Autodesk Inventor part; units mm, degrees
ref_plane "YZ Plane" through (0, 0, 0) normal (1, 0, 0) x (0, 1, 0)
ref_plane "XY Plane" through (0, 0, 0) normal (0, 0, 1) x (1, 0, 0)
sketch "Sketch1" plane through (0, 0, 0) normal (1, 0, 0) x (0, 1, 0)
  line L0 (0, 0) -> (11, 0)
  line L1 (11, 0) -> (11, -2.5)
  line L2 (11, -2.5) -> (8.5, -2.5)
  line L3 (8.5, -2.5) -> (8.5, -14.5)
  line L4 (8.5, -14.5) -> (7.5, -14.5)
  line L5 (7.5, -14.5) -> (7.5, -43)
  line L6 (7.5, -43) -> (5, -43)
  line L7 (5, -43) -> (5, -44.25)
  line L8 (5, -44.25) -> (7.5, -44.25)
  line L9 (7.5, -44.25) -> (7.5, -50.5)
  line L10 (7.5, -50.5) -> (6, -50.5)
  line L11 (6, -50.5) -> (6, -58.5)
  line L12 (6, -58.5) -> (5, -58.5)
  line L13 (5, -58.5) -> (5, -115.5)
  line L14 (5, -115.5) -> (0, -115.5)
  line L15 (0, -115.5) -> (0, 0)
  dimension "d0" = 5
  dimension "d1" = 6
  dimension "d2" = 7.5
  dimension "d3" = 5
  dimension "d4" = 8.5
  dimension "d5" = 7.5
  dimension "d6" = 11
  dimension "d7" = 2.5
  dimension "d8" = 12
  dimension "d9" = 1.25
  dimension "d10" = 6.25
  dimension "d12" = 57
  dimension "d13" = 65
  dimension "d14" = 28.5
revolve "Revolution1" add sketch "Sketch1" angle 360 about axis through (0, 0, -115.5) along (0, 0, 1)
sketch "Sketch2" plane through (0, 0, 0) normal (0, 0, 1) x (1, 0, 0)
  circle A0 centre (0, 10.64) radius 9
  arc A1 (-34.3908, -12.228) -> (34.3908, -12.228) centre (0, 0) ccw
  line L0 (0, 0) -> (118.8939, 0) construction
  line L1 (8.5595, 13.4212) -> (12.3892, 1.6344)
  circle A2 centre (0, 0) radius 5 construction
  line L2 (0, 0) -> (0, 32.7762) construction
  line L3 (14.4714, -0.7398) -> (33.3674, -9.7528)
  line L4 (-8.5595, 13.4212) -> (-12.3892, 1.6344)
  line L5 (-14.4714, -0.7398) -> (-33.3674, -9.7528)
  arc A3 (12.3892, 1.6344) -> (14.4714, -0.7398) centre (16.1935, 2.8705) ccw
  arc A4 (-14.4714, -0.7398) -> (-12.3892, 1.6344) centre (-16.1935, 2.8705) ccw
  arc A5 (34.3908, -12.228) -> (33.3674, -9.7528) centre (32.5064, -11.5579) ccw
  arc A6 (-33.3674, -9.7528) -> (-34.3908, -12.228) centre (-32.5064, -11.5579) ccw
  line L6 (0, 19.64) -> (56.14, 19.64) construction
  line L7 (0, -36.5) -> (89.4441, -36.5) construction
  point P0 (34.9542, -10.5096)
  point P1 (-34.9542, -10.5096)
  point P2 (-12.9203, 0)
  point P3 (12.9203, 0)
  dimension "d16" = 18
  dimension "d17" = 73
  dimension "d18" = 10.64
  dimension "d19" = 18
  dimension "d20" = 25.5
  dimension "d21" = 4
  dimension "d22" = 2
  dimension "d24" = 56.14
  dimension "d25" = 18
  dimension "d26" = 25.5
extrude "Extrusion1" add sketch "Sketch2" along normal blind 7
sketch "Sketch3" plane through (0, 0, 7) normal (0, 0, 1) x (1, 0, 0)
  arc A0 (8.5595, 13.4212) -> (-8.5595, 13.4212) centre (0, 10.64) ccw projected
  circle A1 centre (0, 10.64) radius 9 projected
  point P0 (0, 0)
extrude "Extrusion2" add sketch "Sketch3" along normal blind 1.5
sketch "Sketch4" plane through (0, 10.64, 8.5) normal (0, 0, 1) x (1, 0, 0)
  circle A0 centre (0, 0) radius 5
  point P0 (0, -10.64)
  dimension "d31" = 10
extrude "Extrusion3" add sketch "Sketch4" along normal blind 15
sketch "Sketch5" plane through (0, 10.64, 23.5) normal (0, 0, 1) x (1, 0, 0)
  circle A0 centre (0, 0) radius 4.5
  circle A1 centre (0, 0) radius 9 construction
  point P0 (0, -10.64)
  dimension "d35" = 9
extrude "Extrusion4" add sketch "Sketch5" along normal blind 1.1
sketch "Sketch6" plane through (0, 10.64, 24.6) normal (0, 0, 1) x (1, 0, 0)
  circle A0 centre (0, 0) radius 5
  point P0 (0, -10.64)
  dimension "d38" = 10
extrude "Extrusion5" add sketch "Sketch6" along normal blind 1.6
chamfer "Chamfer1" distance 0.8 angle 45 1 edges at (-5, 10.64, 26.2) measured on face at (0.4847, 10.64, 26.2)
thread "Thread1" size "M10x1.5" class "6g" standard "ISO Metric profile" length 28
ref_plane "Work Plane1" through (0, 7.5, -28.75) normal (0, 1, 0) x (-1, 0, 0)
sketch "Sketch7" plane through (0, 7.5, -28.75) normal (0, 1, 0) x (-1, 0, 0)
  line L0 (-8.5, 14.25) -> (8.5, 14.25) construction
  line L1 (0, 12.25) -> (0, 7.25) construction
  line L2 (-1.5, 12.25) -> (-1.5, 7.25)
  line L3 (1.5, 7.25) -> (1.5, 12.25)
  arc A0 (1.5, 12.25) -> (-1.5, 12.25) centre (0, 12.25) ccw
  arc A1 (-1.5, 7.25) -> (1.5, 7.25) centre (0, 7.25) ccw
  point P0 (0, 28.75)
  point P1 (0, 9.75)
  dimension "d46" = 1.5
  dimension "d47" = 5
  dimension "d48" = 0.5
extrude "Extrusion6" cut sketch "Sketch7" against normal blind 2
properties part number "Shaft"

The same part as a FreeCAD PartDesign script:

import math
import FreeCAD as App
import Part
import Sketcher

V = App.Vector


def edges_at(feature, points):
    """Names of the edges that pass closest to the given points."""
    edges = feature.Shape.Edges
    near = lambda p: min(range(len(edges)), key=lambda i: edges[i].distToShape(Part.Vertex(*p))[0])
    return sorted({f"Edge{near(p) + 1}" for p in points})

doc = App.newDocument("Part")
body = doc.addObject("PartDesign::Body", "Body")

# Sketch on YZ plane
sketch1 = doc.addObject("Sketcher::SketchObject", "Sketch")
body.addObject(sketch1)
sketch1.AttachmentSupport = (doc.YZ_Plane, [""])
sketch1.MapMode = "FlatFace"
sketch1.addGeometry(Part.LineSegment(V(11, 0, 0), V(0, 0, 0)), False)
sketch1.addGeometry(Part.LineSegment(V(0, 0, 0), V(0, -115.5, 0)), False)
sketch1.addGeometry(Part.LineSegment(V(0, -115.5, 0), V(5, -115.5, 0)), False)
sketch1.addGeometry(Part.LineSegment(V(5, -115.5, 0), V(5, -58.5, 0)), False)
sketch1.addGeometry(Part.LineSegment(V(5, -58.5, 0), V(6, -58.5, 0)), False)
sketch1.addGeometry(Part.LineSegment(V(6, -58.5, 0), V(6, -50.5, 0)), False)
sketch1.addGeometry(Part.LineSegment(V(6, -50.5, 0), V(7.5, -50.5, 0)), False)
sketch1.addGeometry(Part.LineSegment(V(7.5, -50.5, 0), V(7.5, -44.25, 0)), False)
sketch1.addGeometry(Part.LineSegment(V(7.5, -44.25, 0), V(5, -44.25, 0)), False)
sketch1.addGeometry(Part.LineSegment(V(5, -44.25, 0), V(5, -43, 0)), False)
sketch1.addGeometry(Part.LineSegment(V(5, -43, 0), V(7.5, -43, 0)), False)
sketch1.addGeometry(Part.LineSegment(V(7.5, -43, 0), V(7.5, -14.5, 0)), False)
sketch1.addGeometry(Part.LineSegment(V(7.5, -14.5, 0), V(8.5, -14.5, 0)), False)
sketch1.addGeometry(Part.LineSegment(V(8.5, -14.5, 0), V(8.5, -2.5, 0)), False)
sketch1.addGeometry(Part.LineSegment(V(8.5, -2.5, 0), V(11, -2.5, 0)), False)
sketch1.addGeometry(Part.LineSegment(V(11, -2.5, 0), V(11, 0, 0)), False)
sketch1.addConstraint(Sketcher.Constraint("Coincident", 0, 2, 1, 1))
sketch1.addConstraint(Sketcher.Constraint("Coincident", 1, 2, 2, 1))
sketch1.addConstraint(Sketcher.Constraint("Coincident", 2, 2, 3, 1))
sketch1.addConstraint(Sketcher.Constraint("Coincident", 3, 2, 4, 1))
sketch1.addConstraint(Sketcher.Constraint("Coincident", 4, 2, 5, 1))
sketch1.addConstraint(Sketcher.Constraint("Coincident", 5, 2, 6, 1))
sketch1.addConstraint(Sketcher.Constraint("Coincident", 6, 2, 7, 1))
sketch1.addConstraint(Sketcher.Constraint("Coincident", 7, 2, 8, 1))
sketch1.addConstraint(Sketcher.Constraint("Coincident", 8, 2, 9, 1))
sketch1.addConstraint(Sketcher.Constraint("Coincident", 9, 2, 10, 1))
sketch1.addConstraint(Sketcher.Constraint("Coincident", 10, 2, 11, 1))
sketch1.addConstraint(Sketcher.Constraint("Coincident", 11, 2, 12, 1))
sketch1.addConstraint(Sketcher.Constraint("Coincident", 12, 2, 13, 1))
sketch1.addConstraint(Sketcher.Constraint("Coincident", 13, 2, 14, 1))
sketch1.addConstraint(Sketcher.Constraint("Coincident", 14, 2, 15, 1))
sketch1.addConstraint(Sketcher.Constraint("Coincident", 15, 2, 0, 1))
sketch1.addConstraint(Sketcher.Constraint("Horizontal", 0))
sketch1.addConstraint(Sketcher.Constraint("Vertical", 1))
sketch1.addConstraint(Sketcher.Constraint("Horizontal", 2))
sketch1.addConstraint(Sketcher.Constraint("Vertical", 3))
sketch1.addConstraint(Sketcher.Constraint("Horizontal", 4))
sketch1.addConstraint(Sketcher.Constraint("Vertical", 5))
sketch1.addConstraint(Sketcher.Constraint("Horizontal", 6))
sketch1.addConstraint(Sketcher.Constraint("Vertical", 7))
sketch1.addConstraint(Sketcher.Constraint("Horizontal", 8))
sketch1.addConstraint(Sketcher.Constraint("Vertical", 9))
sketch1.addConstraint(Sketcher.Constraint("Horizontal", 10))
sketch1.addConstraint(Sketcher.Constraint("Vertical", 11))
sketch1.addConstraint(Sketcher.Constraint("Horizontal", 12))
sketch1.addConstraint(Sketcher.Constraint("Vertical", 13))
sketch1.addConstraint(Sketcher.Constraint("Horizontal", 14))
sketch1.addConstraint(Sketcher.Constraint("Vertical", 15))
sketch1.addConstraint(Sketcher.Constraint("Coincident", 0, 2, -1, 1))
sketch1.addConstraint(Sketcher.Constraint("Vertical", 3, 2, 8, 2))
sketch1.addConstraint(Sketcher.Constraint("Vertical", 7, 2, 10, 2))
sketch1.addConstraint(Sketcher.Constraint("Equal", 4, 12))
sketch1.addConstraint(Sketcher.Constraint("Equal", 10, 14))
sketch1.addConstraint(Sketcher.Constraint("Equal", 14, 15))
sketch1.addConstraint(Sketcher.Constraint("DistanceX", 0, 2, 0, 1, 11.0))
sketch1.addConstraint(Sketcher.Constraint("DistanceX", 2, 1, 2, 2, 5.0))
sketch1.addConstraint(Sketcher.Constraint("DistanceY", 3, 1, 3, 2, 57.0))
sketch1.addConstraint(Sketcher.Constraint("DistanceY", 13, 1, 13, 2, 12.0))
sketch1.addConstraint(Sketcher.Constraint("DistanceX", 8, 2, 8, 1, 2.5))
sketch1.addConstraint(Sketcher.Constraint("DistanceY", 11, 1, 11, 2, 28.5))
sketch1.addConstraint(Sketcher.Constraint("DistanceY", 2, 2, 5, 2, 65.0))
sketch1.addConstraint(Sketcher.Constraint("DistanceY", 7, 1, 7, 2, 6.25))
sketch1.addConstraint(Sketcher.Constraint("DistanceY", 9, 1, 9, 2, 1.25))
revolution = doc.addObject("PartDesign::Revolution", "Revolution")
body.addObject(revolution)
revolution.Profile = sketch1
revolution.ReferenceAxis = (sketch1, ["V_Axis"])
revolution.Angle = 360

# Sketch on XY plane
sketch2 = doc.addObject("Sketcher::SketchObject", "Sketch001")
body.addObject(sketch2)
sketch2.AttachmentSupport = (doc.XY_Plane, [""])
sketch2.MapMode = "FlatFace"
sketch2.addGeometry(Part.ArcOfCircle(Part.Circle(V(0, 10.64, 0), V(0, 0, 1), 9), math.radians(18.000302), math.radians(161.999698)), False)
sketch2.addGeometry(Part.LineSegment(V(-8.5595, 13.4212, 0), V(-12.3892, 1.6344, 0)), False)
sketch2.addGeometry(Part.ArcOfCircle(Part.Circle(V(-16.1935, 2.8705, 0), V(0, 0, 1), 3.999987), math.radians(-64.499027), math.radians(-18.000109)), False)
sketch2.addGeometry(Part.LineSegment(V(-14.4714, -0.7398, 0), V(-33.3674, -9.7528, 0)), False)
sketch2.addGeometry(Part.ArcOfCircle(Part.Circle(V(-32.5064, -11.5579, 0), V(0, 0, 1), 1.999927), math.radians(115.500296), math.radians(199.575585)), False)
sketch2.addGeometry(Part.ArcOfCircle(Part.Circle(V(0, 0, 0), V(0, 0, 1), 36.500015), math.radians(-160.426638), math.radians(-19.573362)), False)
sketch2.addGeometry(Part.ArcOfCircle(Part.Circle(V(32.5064, -11.5579, 0), V(0, 0, 1), 1.999999), math.radians(-19.575585), math.radians(64.499704)), False)
sketch2.addGeometry(Part.LineSegment(V(33.3674, -9.7528, 0), V(14.4714, -0.7398, 0)), False)
sketch2.addGeometry(Part.ArcOfCircle(Part.Circle(V(16.1935, 2.8705, 0), V(0, 0, 1), 4.00008), math.radians(-161.999891), math.radians(-115.500973)), False)
sketch2.addGeometry(Part.LineSegment(V(12.3892, 1.6344, 0), V(8.5595, 13.4212, 0)), False)
sketch2.addConstraint(Sketcher.Constraint("Coincident", 0, 2, 1, 1))
sketch2.addConstraint(Sketcher.Constraint("Coincident", 1, 2, 2, 2))
sketch2.addConstraint(Sketcher.Constraint("Coincident", 2, 1, 3, 1))
sketch2.addConstraint(Sketcher.Constraint("Coincident", 3, 2, 4, 1))
sketch2.addConstraint(Sketcher.Constraint("Coincident", 4, 2, 5, 1))
sketch2.addConstraint(Sketcher.Constraint("Coincident", 5, 2, 6, 1))
sketch2.addConstraint(Sketcher.Constraint("Coincident", 6, 2, 7, 1))
sketch2.addConstraint(Sketcher.Constraint("Coincident", 7, 2, 8, 2))
sketch2.addConstraint(Sketcher.Constraint("Coincident", 8, 1, 9, 1))
sketch2.addConstraint(Sketcher.Constraint("Coincident", 9, 2, 0, 1))
sketch2.addConstraint(Sketcher.Constraint("Coincident", 5, 3, -1, 1))
sketch2.addConstraint(Sketcher.Constraint("PointOnObject", 0, 3, -2))
sketch2.addConstraint(Sketcher.Constraint("Radius", 0, 9.0))
sketch2.addConstraint(Sketcher.Constraint("Radius", 2, 4.0))
sketch2.addConstraint(Sketcher.Constraint("Radius", 4, 2.0))
sketch2.addConstraint(Sketcher.Constraint("Radius", 6, 2.0))
sketch2.addConstraint(Sketcher.Constraint("Radius", 8, 4.0))
sketch2.addConstraint(Sketcher.Constraint("Radius", 5, 36.5))
sketch2.addConstraint(Sketcher.Constraint("DistanceY", -1, 1, 0, 3, 10.64))
sketch2.addConstraint(Sketcher.Constraint("DistanceX", 2, 3, 6, 3, 48.7))
sketch2.addConstraint(Sketcher.Constraint("DistanceX", 4, 3, 8, 3, 48.7))
sketch2.addConstraint(Sketcher.Constraint("DistanceY", 4, 2, 4, 3, 0.67))
sketch2.addConstraint(Sketcher.Constraint("DistanceY", 5, 2, 6, 3, 0.67))
sketch2.addConstraint(Sketcher.Constraint("DistanceX", 1, 2, 5, 2, 46.78))
sketch2.addConstraint(Sketcher.Constraint("DistanceY", 4, 3, -1, 1, 11.558))
sketch2.addConstraint(Sketcher.Constraint("DistanceY", 6, 3, -1, 1, 11.558))
sketch2.addConstraint(Sketcher.Constraint("DistanceX", 2, 3, 0, 2, 7.634))
sketch2.addConstraint(Sketcher.Constraint("DistanceX", 2, 3, 2, 1, 1.722))
sketch2.addConstraint(Sketcher.Constraint("DistanceY", 2, 1, 0, 2, 14.161))
sketch2.addConstraint(Sketcher.Constraint("DistanceX", 3, 2, 4, 3, 0.861))
sketch2.addConstraint(Sketcher.Constraint("DistanceX", 6, 3, 6, 2, 0.861))
sketch2.addConstraint(Sketcher.Constraint("DistanceX", 7, 2, 8, 3, 1.722))
sketch2.addConstraint(Sketcher.Constraint("DistanceY", 6, 2, 7, 2, 9.013))
sketch2.addConstraint(Sketcher.Constraint("DistanceY", 8, 1, 8, 3, 1.236))
sketch2.addConstraint(Sketcher.Constraint("DistanceX", 9, 2, 8, 3, 7.634))
pad1 = doc.addObject("PartDesign::Pad", "Pad")
body.addObject(pad1)
pad1.Profile = sketch2
pad1.Length = 7

# Sketch on XY plane
sketch3 = doc.addObject("Sketcher::SketchObject", "Sketch002")
body.addObject(sketch3)
sketch3.AttachmentSupport = (doc.XY_Plane, [""])
sketch3.MapMode = "FlatFace"
sketch3.AttachmentOffset = App.Placement(V(0, 0, 7), App.Rotation())
sketch3.addGeometry(Part.Circle(V(0, 10.64, 0), V(0, 0, 1), 9.000006), False)
sketch3.addConstraint(Sketcher.Constraint("PointOnObject", 0, 3, -2))
sketch3.addConstraint(Sketcher.Constraint("Diameter", 0, 18.0))
sketch3.addConstraint(Sketcher.Constraint("DistanceY", -1, 1, 0, 3, 10.64))
pad2 = doc.addObject("PartDesign::Pad", "Pad001")
body.addObject(pad2)
pad2.Profile = sketch3
pad2.Length = 1.5

# Sketch on XY plane
sketch4 = doc.addObject("Sketcher::SketchObject", "Sketch003")
body.addObject(sketch4)
sketch4.AttachmentSupport = (doc.XY_Plane, [""])
sketch4.MapMode = "FlatFace"
sketch4.AttachmentOffset = App.Placement(V(0, 0, 8.5), App.Rotation())
sketch4.addGeometry(Part.Circle(V(0, 10.64, 0), V(0, 0, 1), 5), False)
sketch4.addConstraint(Sketcher.Constraint("PointOnObject", 0, 3, -2))
sketch4.addConstraint(Sketcher.Constraint("Diameter", 0, 10.0))
sketch4.addConstraint(Sketcher.Constraint("DistanceY", -1, 1, 0, 3, 10.64))
pad3 = doc.addObject("PartDesign::Pad", "Pad002")
body.addObject(pad3)
pad3.Profile = sketch4
pad3.Length = 15

# Sketch on XY plane
sketch5 = doc.addObject("Sketcher::SketchObject", "Sketch004")
body.addObject(sketch5)
sketch5.AttachmentSupport = (doc.XY_Plane, [""])
sketch5.MapMode = "FlatFace"
sketch5.AttachmentOffset = App.Placement(V(0, 0, 23.5), App.Rotation())
sketch5.addGeometry(Part.Circle(V(0, 10.64, 0), V(0, 0, 1), 4.5), False)
sketch5.addConstraint(Sketcher.Constraint("PointOnObject", 0, 3, -2))
sketch5.addConstraint(Sketcher.Constraint("Diameter", 0, 9.0))
sketch5.addConstraint(Sketcher.Constraint("DistanceY", -1, 1, 0, 3, 10.64))
pad4 = doc.addObject("PartDesign::Pad", "Pad003")
body.addObject(pad4)
pad4.Profile = sketch5
pad4.Length = 1.1

# Sketch on XY plane
sketch6 = doc.addObject("Sketcher::SketchObject", "Sketch005")
body.addObject(sketch6)
sketch6.AttachmentSupport = (doc.XY_Plane, [""])
sketch6.MapMode = "FlatFace"
sketch6.AttachmentOffset = App.Placement(V(0, 0, 24.6), App.Rotation())
sketch6.addGeometry(Part.Circle(V(0, 10.64, 0), V(0, 0, 1), 5), False)
sketch6.addConstraint(Sketcher.Constraint("PointOnObject", 0, 3, -2))
sketch6.addConstraint(Sketcher.Constraint("Diameter", 0, 10.0))
sketch6.addConstraint(Sketcher.Constraint("DistanceY", -1, 1, 0, 3, 10.64))
pad5 = doc.addObject("PartDesign::Pad", "Pad004")
body.addObject(pad5)
pad5.Profile = sketch6
pad5.Length = 1.6
doc.recompute()

chamfer = doc.addObject("PartDesign::Chamfer", "Chamfer")
body.addObject(chamfer)
chamfer.Base = (pad5, edges_at(pad5, [(-5, 10.64, 26.2)]))
chamfer.Size = 0.8

# Sketch on XZ plane
sketch7 = doc.addObject("Sketcher::SketchObject", "Sketch006")
body.addObject(sketch7)
sketch7.AttachmentSupport = (doc.XZ_Plane, [""])
sketch7.MapMode = "FlatFace"
sketch7.AttachmentOffset = App.Placement(V(0, 0, -7.5), App.Rotation())
sketch7.addGeometry(Part.ArcOfCircle(Part.Circle(V(0, -16.5, 0), V(0, 0, 1), 1.5), math.radians(0), math.radians(180)), False)
sketch7.addGeometry(Part.LineSegment(V(1.5, -16.5, 0), V(1.5, -21.5, 0)), False)
sketch7.addGeometry(Part.ArcOfCircle(Part.Circle(V(0, -21.5, 0), V(0, 0, 1), 1.5), math.radians(180), math.radians(360)), False)
sketch7.addGeometry(Part.LineSegment(V(-1.5, -21.5, 0), V(-1.5, -16.5, 0)), False)
sketch7.addConstraint(Sketcher.Constraint("Tangent", 0, 1, 1, 1))
sketch7.addConstraint(Sketcher.Constraint("Tangent", 1, 2, 2, 2))
sketch7.addConstraint(Sketcher.Constraint("Tangent", 2, 1, 3, 1))
sketch7.addConstraint(Sketcher.Constraint("Tangent", 3, 2, 0, 2))
sketch7.addConstraint(Sketcher.Constraint("Vertical", 1))
sketch7.addConstraint(Sketcher.Constraint("Vertical", 3))
sketch7.addConstraint(Sketcher.Constraint("PointOnObject", 0, 3, -2))
sketch7.addConstraint(Sketcher.Constraint("Radius", 0, 1.5))
sketch7.addConstraint(Sketcher.Constraint("DistanceY", 1, 2, 1, 1, 5.0))
sketch7.addConstraint(Sketcher.Constraint("DistanceY", 0, 3, -1, 1, 16.5))
pocket1 = doc.addObject("PartDesign::Pocket", "Pocket")
body.addObject(pocket1)
pocket1.Profile = sketch7
pocket1.Length = 2
pocket1.Reversed = True

doc.recompute()
